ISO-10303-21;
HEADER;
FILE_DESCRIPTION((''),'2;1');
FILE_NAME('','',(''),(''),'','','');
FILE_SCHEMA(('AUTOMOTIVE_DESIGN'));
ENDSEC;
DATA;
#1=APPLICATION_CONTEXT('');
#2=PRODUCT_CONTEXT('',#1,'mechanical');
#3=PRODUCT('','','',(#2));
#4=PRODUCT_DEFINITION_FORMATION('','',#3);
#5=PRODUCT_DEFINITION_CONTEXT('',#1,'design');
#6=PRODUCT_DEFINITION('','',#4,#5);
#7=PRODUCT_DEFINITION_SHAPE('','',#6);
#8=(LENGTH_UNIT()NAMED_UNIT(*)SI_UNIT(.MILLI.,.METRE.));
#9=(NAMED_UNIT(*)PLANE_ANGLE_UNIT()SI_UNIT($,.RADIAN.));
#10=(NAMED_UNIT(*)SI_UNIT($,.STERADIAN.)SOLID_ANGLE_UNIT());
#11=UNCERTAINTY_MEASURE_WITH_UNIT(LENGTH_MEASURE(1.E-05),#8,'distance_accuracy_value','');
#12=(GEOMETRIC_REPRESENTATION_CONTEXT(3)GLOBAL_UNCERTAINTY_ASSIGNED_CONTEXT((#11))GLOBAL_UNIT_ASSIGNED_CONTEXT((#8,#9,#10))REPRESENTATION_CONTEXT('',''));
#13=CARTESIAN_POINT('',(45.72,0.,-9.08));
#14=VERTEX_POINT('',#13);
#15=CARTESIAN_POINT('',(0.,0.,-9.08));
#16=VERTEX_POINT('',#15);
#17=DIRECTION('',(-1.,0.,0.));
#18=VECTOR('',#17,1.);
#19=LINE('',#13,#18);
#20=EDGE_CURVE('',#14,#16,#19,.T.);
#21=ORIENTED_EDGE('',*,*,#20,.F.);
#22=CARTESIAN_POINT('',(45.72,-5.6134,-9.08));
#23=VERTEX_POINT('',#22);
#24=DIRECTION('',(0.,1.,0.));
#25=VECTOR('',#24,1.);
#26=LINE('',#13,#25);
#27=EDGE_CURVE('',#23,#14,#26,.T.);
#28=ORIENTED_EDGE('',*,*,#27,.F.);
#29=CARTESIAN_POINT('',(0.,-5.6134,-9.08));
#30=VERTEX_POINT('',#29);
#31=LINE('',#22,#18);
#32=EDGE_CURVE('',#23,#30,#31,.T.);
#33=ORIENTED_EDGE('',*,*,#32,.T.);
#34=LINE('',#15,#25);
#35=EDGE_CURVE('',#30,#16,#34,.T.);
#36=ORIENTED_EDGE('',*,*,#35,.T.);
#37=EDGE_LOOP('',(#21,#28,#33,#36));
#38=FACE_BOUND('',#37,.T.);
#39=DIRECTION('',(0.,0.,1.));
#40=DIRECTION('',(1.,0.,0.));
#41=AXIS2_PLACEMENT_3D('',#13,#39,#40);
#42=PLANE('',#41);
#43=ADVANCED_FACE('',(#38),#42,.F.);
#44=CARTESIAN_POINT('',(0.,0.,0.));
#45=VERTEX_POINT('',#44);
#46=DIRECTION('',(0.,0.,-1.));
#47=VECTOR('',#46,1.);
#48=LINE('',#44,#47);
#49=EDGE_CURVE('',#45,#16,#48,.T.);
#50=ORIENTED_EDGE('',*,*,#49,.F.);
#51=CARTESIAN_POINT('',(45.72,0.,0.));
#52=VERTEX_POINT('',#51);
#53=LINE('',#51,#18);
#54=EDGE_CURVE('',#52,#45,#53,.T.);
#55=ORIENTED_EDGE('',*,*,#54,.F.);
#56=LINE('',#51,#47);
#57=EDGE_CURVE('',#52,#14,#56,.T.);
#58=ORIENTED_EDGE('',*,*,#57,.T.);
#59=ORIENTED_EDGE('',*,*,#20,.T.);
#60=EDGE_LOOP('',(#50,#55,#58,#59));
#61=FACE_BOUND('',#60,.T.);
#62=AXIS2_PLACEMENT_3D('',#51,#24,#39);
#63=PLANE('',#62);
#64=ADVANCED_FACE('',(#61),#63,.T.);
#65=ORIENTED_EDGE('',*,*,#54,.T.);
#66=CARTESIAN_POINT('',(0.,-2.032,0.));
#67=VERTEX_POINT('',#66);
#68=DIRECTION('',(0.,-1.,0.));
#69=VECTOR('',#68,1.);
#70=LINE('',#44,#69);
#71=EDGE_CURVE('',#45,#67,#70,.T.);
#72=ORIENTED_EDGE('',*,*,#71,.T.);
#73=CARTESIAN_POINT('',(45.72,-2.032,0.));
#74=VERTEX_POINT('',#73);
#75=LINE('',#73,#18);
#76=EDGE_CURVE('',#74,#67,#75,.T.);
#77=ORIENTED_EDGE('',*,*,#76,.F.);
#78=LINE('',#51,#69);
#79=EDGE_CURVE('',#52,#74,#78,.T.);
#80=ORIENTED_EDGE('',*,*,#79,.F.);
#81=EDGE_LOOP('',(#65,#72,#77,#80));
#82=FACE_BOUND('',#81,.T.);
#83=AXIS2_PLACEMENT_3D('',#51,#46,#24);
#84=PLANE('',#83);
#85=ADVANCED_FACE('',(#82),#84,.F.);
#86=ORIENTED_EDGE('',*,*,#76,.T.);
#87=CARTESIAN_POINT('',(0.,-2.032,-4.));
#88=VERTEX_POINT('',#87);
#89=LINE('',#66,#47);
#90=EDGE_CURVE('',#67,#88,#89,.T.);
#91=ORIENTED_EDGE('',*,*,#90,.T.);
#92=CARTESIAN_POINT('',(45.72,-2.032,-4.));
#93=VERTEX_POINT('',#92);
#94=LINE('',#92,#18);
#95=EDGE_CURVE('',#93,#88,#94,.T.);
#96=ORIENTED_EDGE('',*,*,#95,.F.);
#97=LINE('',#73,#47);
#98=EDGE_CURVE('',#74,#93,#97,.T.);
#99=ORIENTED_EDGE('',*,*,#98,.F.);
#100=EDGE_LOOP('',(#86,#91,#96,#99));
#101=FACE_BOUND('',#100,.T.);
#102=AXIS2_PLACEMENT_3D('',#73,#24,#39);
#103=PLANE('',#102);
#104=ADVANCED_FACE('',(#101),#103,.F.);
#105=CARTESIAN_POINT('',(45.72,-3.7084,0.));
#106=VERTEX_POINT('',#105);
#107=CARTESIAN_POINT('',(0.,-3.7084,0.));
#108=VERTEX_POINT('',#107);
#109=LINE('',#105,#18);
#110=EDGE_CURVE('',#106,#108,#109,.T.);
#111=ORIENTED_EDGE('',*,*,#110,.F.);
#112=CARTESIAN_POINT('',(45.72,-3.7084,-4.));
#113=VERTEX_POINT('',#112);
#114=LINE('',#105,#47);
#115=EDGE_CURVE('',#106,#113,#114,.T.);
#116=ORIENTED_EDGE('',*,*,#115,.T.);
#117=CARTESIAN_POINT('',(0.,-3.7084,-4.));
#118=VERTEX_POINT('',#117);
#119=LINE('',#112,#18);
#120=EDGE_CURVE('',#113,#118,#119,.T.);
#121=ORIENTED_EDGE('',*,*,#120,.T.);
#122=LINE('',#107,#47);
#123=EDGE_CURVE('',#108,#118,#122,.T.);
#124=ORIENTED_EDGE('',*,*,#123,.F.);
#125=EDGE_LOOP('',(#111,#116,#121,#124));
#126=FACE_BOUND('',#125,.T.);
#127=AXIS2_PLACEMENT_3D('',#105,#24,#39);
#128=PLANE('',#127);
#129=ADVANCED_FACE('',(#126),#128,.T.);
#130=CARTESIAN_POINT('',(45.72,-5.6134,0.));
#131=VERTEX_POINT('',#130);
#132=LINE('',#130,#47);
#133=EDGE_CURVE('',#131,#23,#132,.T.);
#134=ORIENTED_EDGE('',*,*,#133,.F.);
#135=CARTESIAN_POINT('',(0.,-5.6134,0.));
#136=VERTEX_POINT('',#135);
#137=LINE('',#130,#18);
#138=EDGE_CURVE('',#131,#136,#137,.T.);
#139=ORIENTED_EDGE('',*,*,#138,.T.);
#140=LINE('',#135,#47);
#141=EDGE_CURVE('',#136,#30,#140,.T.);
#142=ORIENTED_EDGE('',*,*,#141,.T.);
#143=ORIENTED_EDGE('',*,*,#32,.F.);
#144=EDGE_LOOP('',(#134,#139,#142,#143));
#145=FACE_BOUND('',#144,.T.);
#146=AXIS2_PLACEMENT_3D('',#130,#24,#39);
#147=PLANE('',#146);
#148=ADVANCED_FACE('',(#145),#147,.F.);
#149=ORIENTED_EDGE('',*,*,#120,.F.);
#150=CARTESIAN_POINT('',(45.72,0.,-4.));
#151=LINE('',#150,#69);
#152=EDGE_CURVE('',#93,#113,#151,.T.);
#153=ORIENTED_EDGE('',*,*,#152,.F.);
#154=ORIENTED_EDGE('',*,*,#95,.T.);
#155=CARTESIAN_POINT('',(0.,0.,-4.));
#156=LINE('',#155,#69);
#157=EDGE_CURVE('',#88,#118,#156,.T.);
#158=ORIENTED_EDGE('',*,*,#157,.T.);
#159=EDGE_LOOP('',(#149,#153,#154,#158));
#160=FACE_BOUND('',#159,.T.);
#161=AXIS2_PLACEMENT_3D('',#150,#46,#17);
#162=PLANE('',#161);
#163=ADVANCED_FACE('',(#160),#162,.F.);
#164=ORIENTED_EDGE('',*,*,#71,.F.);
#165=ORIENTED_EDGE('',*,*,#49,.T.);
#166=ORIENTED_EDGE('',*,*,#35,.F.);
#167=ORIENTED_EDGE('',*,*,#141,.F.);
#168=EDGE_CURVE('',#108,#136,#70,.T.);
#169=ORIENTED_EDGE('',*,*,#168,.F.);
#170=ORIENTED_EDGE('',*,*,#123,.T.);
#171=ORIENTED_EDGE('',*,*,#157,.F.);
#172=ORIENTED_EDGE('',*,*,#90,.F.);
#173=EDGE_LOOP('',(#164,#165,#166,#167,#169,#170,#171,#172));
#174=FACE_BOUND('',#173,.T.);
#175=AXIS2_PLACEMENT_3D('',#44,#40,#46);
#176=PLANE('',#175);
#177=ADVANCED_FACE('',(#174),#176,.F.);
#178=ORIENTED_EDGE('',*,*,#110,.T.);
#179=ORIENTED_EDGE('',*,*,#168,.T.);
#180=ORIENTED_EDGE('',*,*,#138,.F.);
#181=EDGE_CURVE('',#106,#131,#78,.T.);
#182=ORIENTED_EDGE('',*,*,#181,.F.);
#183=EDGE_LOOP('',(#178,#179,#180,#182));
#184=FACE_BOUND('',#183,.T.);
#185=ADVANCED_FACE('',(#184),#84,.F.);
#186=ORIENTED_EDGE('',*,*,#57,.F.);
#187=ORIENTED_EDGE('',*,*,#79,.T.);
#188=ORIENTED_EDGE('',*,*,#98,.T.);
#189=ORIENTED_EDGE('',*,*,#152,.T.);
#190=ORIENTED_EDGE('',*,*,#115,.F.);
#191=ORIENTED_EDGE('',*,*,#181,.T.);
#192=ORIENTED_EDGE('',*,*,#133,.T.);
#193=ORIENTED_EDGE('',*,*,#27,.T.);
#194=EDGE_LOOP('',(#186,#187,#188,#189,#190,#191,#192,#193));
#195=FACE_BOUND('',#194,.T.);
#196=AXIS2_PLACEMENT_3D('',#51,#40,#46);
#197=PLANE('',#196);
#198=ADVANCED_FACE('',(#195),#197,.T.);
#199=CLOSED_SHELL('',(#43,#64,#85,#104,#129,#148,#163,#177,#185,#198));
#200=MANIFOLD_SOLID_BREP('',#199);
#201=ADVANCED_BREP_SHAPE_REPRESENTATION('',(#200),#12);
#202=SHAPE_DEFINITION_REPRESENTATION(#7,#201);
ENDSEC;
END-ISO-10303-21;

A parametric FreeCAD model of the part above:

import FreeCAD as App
import Part
import Sketcher
Q = App.Units.Quantity

doc = App.newDocument("Part")
body = doc.addObject("PartDesign::Body", "Body")

# Sketch on YZ plane
sketch1 = doc.addObject("Sketcher::SketchObject", "Sketch")
body.addObject(sketch1)
sketch1.AttachmentSupport = (doc.YZ_Plane, [""])
sketch1.MapMode = "FlatFace"
sketch1.addGeometry(Part.LineSegment(App.Vector(0, 0, 0), App.Vector(-2, 0, 0)), False)
sketch1.addGeometry(Part.LineSegment(App.Vector(-2, 0, 0), App.Vector(-2, -4, 0)), False)
sketch1.addGeometry(Part.LineSegment(App.Vector(-2, -4, 0), App.Vector(-3.7, -4, 0)), False)
sketch1.addGeometry(Part.LineSegment(App.Vector(-3.7, -4, 0), App.Vector(-3.7, 0, 0)), False)
sketch1.addGeometry(Part.LineSegment(App.Vector(-3.7, 0, 0), App.Vector(-5.6, 0, 0)), False)
sketch1.addGeometry(Part.LineSegment(App.Vector(-5.6, 0, 0), App.Vector(-5.6, -9.1, 0)), False)
sketch1.addGeometry(Part.LineSegment(App.Vector(-5.6, -9.1, 0), App.Vector(0, -9.1, 0)), False)
sketch1.addGeometry(Part.LineSegment(App.Vector(0, -9.1, 0), App.Vector(0, 0, 0)), False)
sketch1.addConstraint(Sketcher.Constraint("Coincident", 0, 2, 1, 1))
sketch1.addConstraint(Sketcher.Constraint("Coincident", 1, 2, 2, 1))
sketch1.addConstraint(Sketcher.Constraint("Coincident", 2, 2, 3, 1))
sketch1.addConstraint(Sketcher.Constraint("Coincident", 3, 2, 4, 1))
sketch1.addConstraint(Sketcher.Constraint("Coincident", 4, 2, 5, 1))
sketch1.addConstraint(Sketcher.Constraint("Coincident", 5, 2, 6, 1))
sketch1.addConstraint(Sketcher.Constraint("Coincident", 6, 2, 7, 1))
sketch1.addConstraint(Sketcher.Constraint("Coincident", 7, 2, 0, 1))
sketch1.addConstraint(Sketcher.Constraint("Horizontal", 0))
sketch1.addConstraint(Sketcher.Constraint("Vertical", 1))
sketch1.addConstraint(Sketcher.Constraint("Horizontal", 2))
sketch1.addConstraint(Sketcher.Constraint("Vertical", 3))
sketch1.addConstraint(Sketcher.Constraint("Horizontal", 4))
sketch1.addConstraint(Sketcher.Constraint("Vertical", 5))
sketch1.addConstraint(Sketcher.Constraint("Horizontal", 6))
sketch1.addConstraint(Sketcher.Constraint("Vertical", 7))
sketch1.addConstraint(Sketcher.Constraint("Coincident", 7, 2, -1, 1))
sketch1.addConstraint(Sketcher.Constraint("PointOnObject", 3, 2, -1))
sketch1.addConstraint(Sketcher.Constraint("DistanceX", 0, 2, 0, 1, Q("0.08 in")))
sketch1.addConstraint(Sketcher.Constraint("DistanceY", 5, 2, 2, 2, Q("0.2 in")))
sketch1.addConstraint(Sketcher.Constraint("DistanceX", 2, 2, 2, 1, Q("0.066 in")))
sketch1.addConstraint(Sketcher.Constraint("DistanceX", 4, 2, 4, 1, Q("0.075 in")))
sketch1.addConstraint(Sketcher.Constraint("DistanceY", 1, 2, 1, 1, 4.0))
pad1 = doc.addObject("PartDesign::Pad", "Pad")
body.addObject(pad1)
pad1.Profile = sketch1
pad1.Length = Q("1.8 in")

doc.recompute()
